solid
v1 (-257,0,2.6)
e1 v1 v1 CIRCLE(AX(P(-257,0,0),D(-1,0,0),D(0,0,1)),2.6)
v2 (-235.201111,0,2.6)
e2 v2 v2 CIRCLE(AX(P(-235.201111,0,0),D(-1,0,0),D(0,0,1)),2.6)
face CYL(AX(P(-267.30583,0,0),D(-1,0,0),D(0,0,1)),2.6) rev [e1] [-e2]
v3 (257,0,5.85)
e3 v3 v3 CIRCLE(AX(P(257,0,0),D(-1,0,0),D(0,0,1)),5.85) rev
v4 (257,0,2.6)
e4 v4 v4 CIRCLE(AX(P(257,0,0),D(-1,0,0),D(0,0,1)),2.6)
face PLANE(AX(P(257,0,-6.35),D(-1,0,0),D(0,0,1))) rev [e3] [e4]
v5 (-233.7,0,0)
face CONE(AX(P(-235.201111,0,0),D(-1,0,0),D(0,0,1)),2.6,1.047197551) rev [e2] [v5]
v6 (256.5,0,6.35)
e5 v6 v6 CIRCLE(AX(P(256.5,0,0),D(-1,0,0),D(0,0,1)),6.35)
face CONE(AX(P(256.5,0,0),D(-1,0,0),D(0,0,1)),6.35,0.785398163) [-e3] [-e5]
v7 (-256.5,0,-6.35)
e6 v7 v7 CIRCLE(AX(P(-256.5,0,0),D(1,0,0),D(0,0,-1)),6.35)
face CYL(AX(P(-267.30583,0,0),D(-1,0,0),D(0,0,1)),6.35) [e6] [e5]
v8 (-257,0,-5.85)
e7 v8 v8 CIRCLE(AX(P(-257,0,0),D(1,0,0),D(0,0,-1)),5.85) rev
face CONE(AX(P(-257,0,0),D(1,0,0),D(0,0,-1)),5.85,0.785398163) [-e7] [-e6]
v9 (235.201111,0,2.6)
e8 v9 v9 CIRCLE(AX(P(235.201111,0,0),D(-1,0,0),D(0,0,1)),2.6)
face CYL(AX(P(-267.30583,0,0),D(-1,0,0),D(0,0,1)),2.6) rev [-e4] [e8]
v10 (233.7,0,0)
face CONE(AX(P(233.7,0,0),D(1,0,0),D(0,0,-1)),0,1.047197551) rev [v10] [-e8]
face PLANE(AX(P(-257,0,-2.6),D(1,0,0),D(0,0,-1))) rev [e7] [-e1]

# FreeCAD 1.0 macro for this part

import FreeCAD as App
import Part
import Sketcher
Q = App.Units.Quantity


def edges_at(feature, points):
    """Names of the edges that pass closest to the given points."""
    edges = feature.Shape.Edges
    near = lambda p: min(range(len(edges)), key=lambda i: edges[i].distToShape(Part.Vertex(*p))[0])
    return sorted({f"Edge{near(p) + 1}" for p in points})

doc = App.newDocument("Part")
body = doc.addObject("PartDesign::Body", "Body")

sketch1 = doc.addObject("Sketcher::SketchObject", "Sketch")
body.addObject(sketch1)
sketch1.AttachmentSupport = (doc.XZ_Plane, [""])
sketch1.MapMode = "FlatFace"
sketch1.addGeometry([
    Part.LineSegment(App.Vector(257, -6.3, 0), App.Vector(-257, -6.3, 0)),
    Part.LineSegment(App.Vector(-257, -6.3, 0), App.Vector(-257, -2.6, 0)),
    Part.LineSegment(App.Vector(-257, -2.6, 0), App.Vector(-235.2, -2.6, 0)),
    Part.LineSegment(App.Vector(-235.2, -2.6, 0), App.Vector(-233.7, 0, 0)),
    Part.LineSegment(App.Vector(-233.7, 0, 0), App.Vector(233.7, 0, 0)),
    Part.LineSegment(App.Vector(233.7, 0, 0), App.Vector(235.2, -2.6, 0)),
    Part.LineSegment(App.Vector(235.2, -2.6, 0), App.Vector(257, -2.6, 0)),
    Part.LineSegment(App.Vector(257, -2.6, 0), App.Vector(257, -6.3, 0)),
], False)
sketch1.addConstraint([
    Sketcher.Constraint("Coincident", 0, 2, 1, 1),
    Sketcher.Constraint("Coincident", 1, 2, 2, 1),
    Sketcher.Constraint("Coincident", 2, 2, 3, 1),
    Sketcher.Constraint("Coincident", 3, 2, 4, 1),
    Sketcher.Constraint("Coincident", 4, 2, 5, 1),
    Sketcher.Constraint("Coincident", 5, 2, 6, 1),
    Sketcher.Constraint("Coincident", 6, 2, 7, 1),
    Sketcher.Constraint("Coincident", 7, 2, 0, 1),
    Sketcher.Constraint("Horizontal", 0),
    Sketcher.Constraint("Vertical", 1),
    Sketcher.Constraint("Horizontal", 2),
    Sketcher.Constraint("Horizontal", 4),
    Sketcher.Constraint("Horizontal", 6),
    Sketcher.Constraint("Vertical", 7),
    Sketcher.Constraint("Symmetric", 3, 2, 4, 2, -1, 1),
    Sketcher.Constraint("Symmetric", 2, 2, 5, 2, -2),
    Sketcher.Constraint("Equal", 2, 6),
    Sketcher.Constraint("DistanceX", 0, 2, 0, 1, 514.0),
    Sketcher.Constraint("Angle", 3, Q("60 deg")),
    Sketcher.Constraint("DistanceX", 4, 1, 4, 2, 467.4),
    Sketcher.Constraint("DistanceY", 1, 1, 1, 2, 3.75),
    Sketcher.Constraint("DistanceY", 1, 2, -1, 1, 2.6),
])
revolution = doc.addObject("PartDesign::Revolution", "Revolution")
body.addObject(revolution)
revolution.Profile = sketch1
revolution.ReferenceAxis = (sketch1, ["H_Axis"])
revolution.Angle = 360
doc.recompute()

chamfer = doc.addObject("PartDesign::Chamfer", "Chamfer")
body.addObject(chamfer)
chamfer.Base = (revolution, edges_at(revolution, [(257, 0, 6.35), (-257, 0, 6.35)]))
chamfer.Size = 0.5

doc.recompute()
